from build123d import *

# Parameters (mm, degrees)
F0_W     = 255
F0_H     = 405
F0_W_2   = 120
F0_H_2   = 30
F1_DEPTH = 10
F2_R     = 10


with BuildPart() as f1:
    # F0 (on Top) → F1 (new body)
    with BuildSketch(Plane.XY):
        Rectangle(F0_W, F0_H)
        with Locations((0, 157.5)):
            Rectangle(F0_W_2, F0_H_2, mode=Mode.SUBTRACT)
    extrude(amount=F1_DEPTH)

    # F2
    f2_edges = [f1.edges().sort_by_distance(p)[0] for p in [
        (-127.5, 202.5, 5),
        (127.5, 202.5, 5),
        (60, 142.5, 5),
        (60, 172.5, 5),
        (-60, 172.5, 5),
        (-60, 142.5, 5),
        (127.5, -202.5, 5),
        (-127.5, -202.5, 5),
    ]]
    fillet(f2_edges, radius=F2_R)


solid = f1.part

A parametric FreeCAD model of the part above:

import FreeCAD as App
import Part
import Sketcher


def edges_at(feature, points):
    """Names of the edges that pass closest to the given points."""
    edges = feature.Shape.Edges
    near = lambda p: min(range(len(edges)), key=lambda i: edges[i].distToShape(Part.Vertex(*p))[0])
    return sorted({f"Edge{near(p) + 1}" for p in points})


def add_polygon(sketch, points):
    """Adds a closed chain of lines whose ends are joined by coincident constraints."""
    first, n = sketch.GeometryCount, len(points)
    for a, b in zip(points, points[1:] + points[:1]):
        sketch.addGeometry(Part.LineSegment(App.Vector(*a, 0), App.Vector(*b, 0)), False)
    for i in range(n):
        sketch.addConstraint(Sketcher.Constraint("Coincident", first + i, 2, first + (i + 1) % n, 1))

doc = App.newDocument("Part")
body = doc.addObject("PartDesign::Body", "Body")

sketch1 = doc.addObject("Sketcher::SketchObject", "Sketch")
body.addObject(sketch1)
sketch1.AttachmentSupport = (doc.XY_Plane, [""])
sketch1.MapMode = "FlatFace"
add_polygon(sketch1, [(-128, 202), (-128, -202), (128, -202), (128, 202)])
add_polygon(sketch1, [(60, 142), (-60, 142), (-60, 172), (60, 172)])
sketch1.addConstraint([
    Sketcher.Constraint("Vertical", 0),
    Sketcher.Constraint("Horizontal", 1),
    Sketcher.Constraint("Vertical", 2),
    Sketcher.Constraint("Horizontal", 3),
    Sketcher.Constraint("Horizontal", 4),
    Sketcher.Constraint("Vertical", 5),
    Sketcher.Constraint("Horizontal", 6),
    Sketcher.Constraint("Vertical", 7),
    Sketcher.Constraint("Symmetric", 0, 2, 2, 2, -1, 1),
    Sketcher.Constraint("DistanceX", 1, 1, 1, 2, 255.0),
    Sketcher.Constraint("DistanceX", 4, 2, 4, 1, 120.0),
    Sketcher.Constraint("DistanceY", 0, 2, 0, 1, 405.0),
    Sketcher.Constraint("DistanceY", 5, 1, 5, 2, 30.0),
    Sketcher.Constraint("DistanceX", 4, 2, -1, 1, 60.0),
    Sketcher.Constraint("DistanceY", 4, 2, 3, 2, 60.0),
])
pad1 = doc.addObject("PartDesign::Pad", "Pad")
body.addObject(pad1)
pad1.Profile = sketch1
pad1.Length = 10
doc.recompute()

fillet = doc.addObject("PartDesign::Fillet", "Fillet")
body.addObject(fillet)
fillet.Base = (pad1, edges_at(pad1, [
    (-127.5, 202.5, 5),
    (127.5, 202.5, 5),
    (60, 142.5, 5),
    (60, 172.5, 5),
    (-60, 172.5, 5),
    (-60, 142.5, 5),
    (127.5, -202.5, 5),
    (-127.5, -202.5, 5),
]))
fillet.Radius = 10

doc.recompute()
